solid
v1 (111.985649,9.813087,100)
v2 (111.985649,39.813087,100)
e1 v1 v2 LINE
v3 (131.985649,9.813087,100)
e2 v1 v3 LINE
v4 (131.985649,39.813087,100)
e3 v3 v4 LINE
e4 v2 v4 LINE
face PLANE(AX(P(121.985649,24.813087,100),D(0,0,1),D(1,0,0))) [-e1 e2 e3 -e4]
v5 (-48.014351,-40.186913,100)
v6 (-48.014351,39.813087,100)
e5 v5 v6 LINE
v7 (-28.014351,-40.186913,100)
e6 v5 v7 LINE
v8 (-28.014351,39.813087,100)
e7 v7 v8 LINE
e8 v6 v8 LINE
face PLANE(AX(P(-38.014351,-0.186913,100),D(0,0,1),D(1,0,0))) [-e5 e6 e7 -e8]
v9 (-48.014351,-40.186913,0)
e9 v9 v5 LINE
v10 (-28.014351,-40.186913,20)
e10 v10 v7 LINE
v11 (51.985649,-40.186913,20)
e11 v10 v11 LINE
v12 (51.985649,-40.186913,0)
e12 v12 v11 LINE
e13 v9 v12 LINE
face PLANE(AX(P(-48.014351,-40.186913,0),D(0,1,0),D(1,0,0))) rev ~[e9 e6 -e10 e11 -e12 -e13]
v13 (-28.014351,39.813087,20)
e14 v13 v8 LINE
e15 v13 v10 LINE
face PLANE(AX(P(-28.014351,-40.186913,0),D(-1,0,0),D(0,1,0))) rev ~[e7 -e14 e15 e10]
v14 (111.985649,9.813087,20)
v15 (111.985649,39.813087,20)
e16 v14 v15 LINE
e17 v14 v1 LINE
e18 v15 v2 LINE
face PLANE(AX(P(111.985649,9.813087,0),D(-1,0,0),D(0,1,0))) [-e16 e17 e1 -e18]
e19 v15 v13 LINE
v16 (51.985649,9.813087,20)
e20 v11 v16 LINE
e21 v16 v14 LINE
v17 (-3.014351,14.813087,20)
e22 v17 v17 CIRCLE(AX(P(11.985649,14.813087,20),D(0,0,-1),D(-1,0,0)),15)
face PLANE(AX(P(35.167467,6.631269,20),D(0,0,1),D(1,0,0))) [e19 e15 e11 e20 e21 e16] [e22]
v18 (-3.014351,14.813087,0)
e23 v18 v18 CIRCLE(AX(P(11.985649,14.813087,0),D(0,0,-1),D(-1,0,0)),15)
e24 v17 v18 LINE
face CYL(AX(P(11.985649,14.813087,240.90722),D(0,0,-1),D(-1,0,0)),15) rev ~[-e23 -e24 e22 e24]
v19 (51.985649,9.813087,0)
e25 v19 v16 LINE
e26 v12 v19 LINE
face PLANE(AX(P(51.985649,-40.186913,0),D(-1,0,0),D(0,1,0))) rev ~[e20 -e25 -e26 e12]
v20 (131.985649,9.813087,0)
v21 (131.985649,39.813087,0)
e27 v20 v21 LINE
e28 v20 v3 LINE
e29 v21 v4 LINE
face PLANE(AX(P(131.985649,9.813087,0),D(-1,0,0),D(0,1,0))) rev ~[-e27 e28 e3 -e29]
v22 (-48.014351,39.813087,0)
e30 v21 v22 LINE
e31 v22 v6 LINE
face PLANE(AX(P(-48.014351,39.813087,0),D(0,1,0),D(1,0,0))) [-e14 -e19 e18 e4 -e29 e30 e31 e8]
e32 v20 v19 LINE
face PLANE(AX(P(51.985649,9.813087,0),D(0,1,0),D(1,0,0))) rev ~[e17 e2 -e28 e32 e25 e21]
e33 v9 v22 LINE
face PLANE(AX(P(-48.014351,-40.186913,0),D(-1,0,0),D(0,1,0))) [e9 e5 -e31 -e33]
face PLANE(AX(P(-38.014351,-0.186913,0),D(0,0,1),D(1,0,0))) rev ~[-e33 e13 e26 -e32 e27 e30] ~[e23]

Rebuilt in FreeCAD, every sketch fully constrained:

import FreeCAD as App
import Part
import Sketcher
Q = App.Units.Quantity


def add_polygon(sketch, points):
    """Adds a closed chain of lines whose ends are joined by coincident constraints."""
    first, n = sketch.GeometryCount, len(points)
    for a, b in zip(points, points[1:] + points[:1]):
        sketch.addGeometry(Part.LineSegment(App.Vector(*a, 0), App.Vector(*b, 0)), False)
    for i in range(n):
        sketch.addConstraint(Sketcher.Constraint("Coincident", first + i, 2, first + (i + 1) % n, 1))

doc = App.newDocument("Part")
params = doc.addObject("Spreadsheet::Sheet", "Params")
for row, (alias, value) in enumerate([
    ("sketch1_width", "140 mm"),
    ("sketch1_width2", "80 mm"),
    ("sketch1_height", "50 mm"),
    ("pad1_length", "20 mm"),
    ("sketch2_width", "20 mm"),
    ("sketch2_height", "80 mm"),
    ("sketch2_height2", "30 mm"),
    ("pad2_length", "100 mm"),
    ("sketch3_diameter", "30 mm"),
    ("hole_diameter", "30 mm"),
], start=1):
    params.set(f"A{row}", alias)
    params.set(f"B{row}", "=" + value)
    params.setAlias(f"B{row}", alias)

body = doc.addObject("PartDesign::Body", "Body")

# Sketch on XY plane
sketch1 = doc.addObject("Sketcher::SketchObject", "Sketch")
body.addObject(sketch1)
sketch1.AttachmentSupport = (doc.XY_Plane, [""])
sketch1.MapMode = "FlatFace"
add_polygon(sketch1, [(111.985649, 39.813087), (-28.014351, 39.813087), (-28.014351, -40.186913), (51.985649, -40.186913), (51.985649, 9.813087), (111.985649, 9.813087)])  # lines 0-5
sketch1.addConstraint(Sketcher.Constraint("Horizontal", 0))
sketch1.addConstraint(Sketcher.Constraint("Vertical", 1))
sketch1.addConstraint(Sketcher.Constraint("Horizontal", 2))
sketch1.addConstraint(Sketcher.Constraint("Vertical", 3))
sketch1.addConstraint(Sketcher.Constraint("Horizontal", 4))
sketch1.addConstraint(Sketcher.Constraint("Vertical", 5))
sketch1.addConstraint(Sketcher.Constraint("Equal", 2, 1))
sketch1.addConstraint(Sketcher.Constraint("DistanceX", 0, 2, 0, 1, Q("140 mm")))
sketch1.addConstraint(Sketcher.Constraint("DistanceX", 2, 1, 2, 2, Q("80 mm")))
sketch1.addConstraint(Sketcher.Constraint("DistanceY", 3, 1, 3, 2, Q("50 mm")))
sketch1.addConstraint(Sketcher.Constraint("DistanceX", 0, 2, -1, 1, Q("28.014351 mm")))
sketch1.addConstraint(Sketcher.Constraint("DistanceY", -1, 1, 0, 2, Q("39.813087 mm")))
sketch1.setExpression("Constraints[13]", "Params.sketch1_width")
sketch1.setExpression("Constraints[14]", "Params.sketch1_width2")
sketch1.setExpression("Constraints[15]", "Params.sketch1_height")
pad1 = doc.addObject("PartDesign::Pad", "Pad")
body.addObject(pad1)
pad1.Profile = sketch1
pad1.setExpression("Length", "Params.pad1_length")

# Sketch on XY plane
sketch2 = doc.addObject("Sketcher::SketchObject", "Sketch001")
body.addObject(sketch2)
sketch2.AttachmentSupport = (doc.XY_Plane, [""])
sketch2.MapMode = "FlatFace"
add_polygon(sketch2, [(-48.014351, 39.813087), (-48.014351, -40.186913), (-28.014351, -40.186913), (-28.014351, 39.813087)])  # lines 0-3
add_polygon(sketch2, [(111.985649, 39.813087), (111.985649, 9.813087), (131.985649, 9.813087), (131.985649, 39.813087)])  # lines 4-7
sketch2.addConstraint(Sketcher.Constraint("Vertical", 0))
sketch2.addConstraint(Sketcher.Constraint("Horizontal", 1))
sketch2.addConstraint(Sketcher.Constraint("Vertical", 2))
sketch2.addConstraint(Sketcher.Constraint("Horizontal", 3))
sketch2.addConstraint(Sketcher.Constraint("Vertical", 4))
sketch2.addConstraint(Sketcher.Constraint("Horizontal", 5))
sketch2.addConstraint(Sketcher.Constraint("Vertical", 6))
sketch2.addConstraint(Sketcher.Constraint("Horizontal", 7))
sketch2.addConstraint(Sketcher.Constraint("Horizontal", 3, 2, 6, 2))
sketch2.addConstraint(Sketcher.Constraint("Equal", 3, 5))
sketch2.addConstraint(Sketcher.Constraint("DistanceX", 1, 1, 1, 2, Q("20 mm")))
sketch2.addConstraint(Sketcher.Constraint("DistanceY", 0, 2, 0, 1, Q("80 mm")))
sketch2.addConstraint(Sketcher.Constraint("DistanceY", 4, 2, 4, 1, Q("30 mm")))
sketch2.addConstraint(Sketcher.Constraint("DistanceX", 2, 2, 4, 2, Q("140 mm")))
sketch2.addConstraint(Sketcher.Constraint("DistanceX", 0, 2, -1, 1, Q("48.014351 mm")))
sketch2.addConstraint(Sketcher.Constraint("DistanceY", 0, 2, -1, 1, Q("40.186913 mm")))
sketch2.setExpression("Constraints[18]", "Params.sketch2_width")
sketch2.setExpression("Constraints[19]", "Params.sketch2_height")
sketch2.setExpression("Constraints[20]", "Params.sketch2_height2")
pad2 = doc.addObject("PartDesign::Pad", "Pad001")
body.addObject(pad2)
pad2.Profile = sketch2
pad2.setExpression("Length", "Params.pad2_length")

# Sketch on XY plane
sketch3 = doc.addObject("Sketcher::SketchObject", "Sketch002")
body.addObject(sketch3)
sketch3.AttachmentSupport = (doc.XY_Plane, [""])
sketch3.MapMode = "FlatFace"
sketch3.AttachmentOffset = App.Placement(App.Vector(0, 0, 20), App.Rotation())
sketch3.addGeometry(Part.Circle(App.Vector(11.985649, 14.813087, 0), App.Vector(0, 0, 1), 15), False)
sketch3.addConstraint(Sketcher.Constraint("Diameter", 0, Q("30 mm")))
sketch3.addConstraint(Sketcher.Constraint("DistanceX", -1, 1, 0, 3, Q("11.985649 mm")))
sketch3.addConstraint(Sketcher.Constraint("DistanceY", -1, 1, 0, 3, Q("14.813087 mm")))
sketch3.setExpression("Constraints[0]", "Params.sketch3_diameter")
doc.recompute()
hole = doc.addObject("PartDesign::Hole", "Hole")
body.addObject(hole)
hole.Profile = sketch3
hole.ThreadType = "None"
hole.setExpression("Diameter", "Params.hole_diameter")
hole.DepthType = "ThroughAll"

doc.recompute()
